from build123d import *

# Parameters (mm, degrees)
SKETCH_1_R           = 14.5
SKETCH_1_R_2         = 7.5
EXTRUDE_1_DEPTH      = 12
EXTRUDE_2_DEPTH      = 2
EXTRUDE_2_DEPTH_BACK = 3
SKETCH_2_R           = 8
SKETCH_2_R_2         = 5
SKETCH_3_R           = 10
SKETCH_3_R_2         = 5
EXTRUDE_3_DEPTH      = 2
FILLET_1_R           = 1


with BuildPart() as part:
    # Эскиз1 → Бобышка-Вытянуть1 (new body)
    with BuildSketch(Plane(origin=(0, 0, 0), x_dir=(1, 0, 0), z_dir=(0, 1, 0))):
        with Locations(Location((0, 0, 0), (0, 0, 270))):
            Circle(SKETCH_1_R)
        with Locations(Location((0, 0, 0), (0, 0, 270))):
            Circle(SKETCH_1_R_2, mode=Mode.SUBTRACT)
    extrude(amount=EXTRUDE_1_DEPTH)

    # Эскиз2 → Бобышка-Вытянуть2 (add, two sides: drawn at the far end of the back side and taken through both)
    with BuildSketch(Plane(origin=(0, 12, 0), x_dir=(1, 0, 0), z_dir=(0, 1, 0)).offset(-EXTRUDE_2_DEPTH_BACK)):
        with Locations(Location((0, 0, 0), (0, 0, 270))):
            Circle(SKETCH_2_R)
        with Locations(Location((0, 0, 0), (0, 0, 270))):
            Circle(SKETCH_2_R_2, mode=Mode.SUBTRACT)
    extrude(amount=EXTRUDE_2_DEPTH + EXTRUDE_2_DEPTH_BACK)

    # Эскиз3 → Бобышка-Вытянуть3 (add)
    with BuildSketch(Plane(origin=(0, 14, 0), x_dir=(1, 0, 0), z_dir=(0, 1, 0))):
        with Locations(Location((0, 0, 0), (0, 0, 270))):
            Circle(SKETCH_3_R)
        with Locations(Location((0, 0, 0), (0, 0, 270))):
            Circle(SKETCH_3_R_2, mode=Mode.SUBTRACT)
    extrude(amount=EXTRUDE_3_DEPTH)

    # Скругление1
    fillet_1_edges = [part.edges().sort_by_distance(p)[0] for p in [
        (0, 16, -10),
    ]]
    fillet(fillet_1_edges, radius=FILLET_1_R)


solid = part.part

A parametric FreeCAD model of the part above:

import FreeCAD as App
import Part
import Sketcher
from FreeCAD import Vector
Q = App.Units.Quantity


def edges_at(feature, points):
    """Names of the edges that pass closest to the given points."""
    edges = feature.Shape.Edges
    near = lambda p: min(range(len(edges)), key=lambda i: edges[i].distToShape(Part.Vertex(*p))[0])
    return sorted({f"Edge{near(p) + 1}" for p in points})

doc = App.newDocument("Part")
body = doc.addObject("PartDesign::Body", "Body")

sketch1 = body.newObject("Sketcher::SketchObject", "Sketch")
sketch1.AttachmentSupport = (doc.getObject("XZ_Plane"), [""])
sketch1.MapMode = "FlatFace"
sketch1.addGeometry(Part.Circle(Vector(0, 0, 0), Vector(0, 0, 1), 14), False)
sketch1.addGeometry(Part.Circle(Vector(0, 0, 0), Vector(0, 0, 1), 8), False)
sketch1.addConstraint(Sketcher.Constraint("Coincident", 0, 3, -1, 1))
sketch1.addConstraint(Sketcher.Constraint("Coincident", 1, 3, -1, 1))
sketch1.addConstraint(Sketcher.Constraint("Diameter", 0, Q("29 mm")))
sketch1.addConstraint(Sketcher.Constraint("Diameter", 1, Q("15 mm")))
pad1 = body.newObject("PartDesign::Pad", "Pad")
pad1.Profile = sketch1
pad1.Length = 12
pad1.Reversed = True

sketch2 = body.newObject("Sketcher::SketchObject", "Sketch001")
sketch2.AttachmentSupport = (doc.getObject("XZ_Plane"), [""])
sketch2.MapMode = "FlatFace"
sketch2.AttachmentOffset = App.Placement(Vector(0, 0, -12), App.Rotation())
sketch2.addGeometry(Part.Circle(Vector(0, 0, 0), Vector(0, 0, 1), 8), False)
sketch2.addGeometry(Part.Circle(Vector(0, 0, 0), Vector(0, 0, 1), 5), False)
sketch2.addConstraint(Sketcher.Constraint("Coincident", 0, 3, -1, 1))
sketch2.addConstraint(Sketcher.Constraint("Coincident", 1, 3, -1, 1))
sketch2.addConstraint(Sketcher.Constraint("Diameter", 0, Q("16 mm")))
sketch2.addConstraint(Sketcher.Constraint("Diameter", 1, Q("10 mm")))
pad2 = body.newObject("PartDesign::Pad", "Pad001")
pad2.Profile = sketch2
pad2.Type = "TwoLengths"
pad2.Length = 2
pad2.Length2 = 3
pad2.Reversed = True

sketch3 = body.newObject("Sketcher::SketchObject", "Sketch002")
sketch3.AttachmentSupport = (doc.getObject("XZ_Plane"), [""])
sketch3.MapMode = "FlatFace"
sketch3.AttachmentOffset = App.Placement(Vector(0, 0, -14), App.Rotation())
sketch3.addGeometry(Part.Circle(Vector(0, 0, 0), Vector(0, 0, 1), 10), False)
sketch3.addGeometry(Part.Circle(Vector(0, 0, 0), Vector(0, 0, 1), 5), False)
sketch3.addConstraint(Sketcher.Constraint("Coincident", 0, 3, -1, 1))
sketch3.addConstraint(Sketcher.Constraint("Coincident", 1, 3, -1, 1))
sketch3.addConstraint(Sketcher.Constraint("Diameter", 0, Q("20 mm")))
sketch3.addConstraint(Sketcher.Constraint("Diameter", 1, Q("10 mm")))
pad3 = body.newObject("PartDesign::Pad", "Pad002")
pad3.Profile = sketch3
pad3.Length = 2
pad3.Reversed = True
doc.recompute()

fillet = body.newObject("PartDesign::Fillet", "Fillet")
fillet.Base = (pad3, edges_at(pad3, [(0, 16, -10)]))
fillet.Radius = 1

doc.recompute()
